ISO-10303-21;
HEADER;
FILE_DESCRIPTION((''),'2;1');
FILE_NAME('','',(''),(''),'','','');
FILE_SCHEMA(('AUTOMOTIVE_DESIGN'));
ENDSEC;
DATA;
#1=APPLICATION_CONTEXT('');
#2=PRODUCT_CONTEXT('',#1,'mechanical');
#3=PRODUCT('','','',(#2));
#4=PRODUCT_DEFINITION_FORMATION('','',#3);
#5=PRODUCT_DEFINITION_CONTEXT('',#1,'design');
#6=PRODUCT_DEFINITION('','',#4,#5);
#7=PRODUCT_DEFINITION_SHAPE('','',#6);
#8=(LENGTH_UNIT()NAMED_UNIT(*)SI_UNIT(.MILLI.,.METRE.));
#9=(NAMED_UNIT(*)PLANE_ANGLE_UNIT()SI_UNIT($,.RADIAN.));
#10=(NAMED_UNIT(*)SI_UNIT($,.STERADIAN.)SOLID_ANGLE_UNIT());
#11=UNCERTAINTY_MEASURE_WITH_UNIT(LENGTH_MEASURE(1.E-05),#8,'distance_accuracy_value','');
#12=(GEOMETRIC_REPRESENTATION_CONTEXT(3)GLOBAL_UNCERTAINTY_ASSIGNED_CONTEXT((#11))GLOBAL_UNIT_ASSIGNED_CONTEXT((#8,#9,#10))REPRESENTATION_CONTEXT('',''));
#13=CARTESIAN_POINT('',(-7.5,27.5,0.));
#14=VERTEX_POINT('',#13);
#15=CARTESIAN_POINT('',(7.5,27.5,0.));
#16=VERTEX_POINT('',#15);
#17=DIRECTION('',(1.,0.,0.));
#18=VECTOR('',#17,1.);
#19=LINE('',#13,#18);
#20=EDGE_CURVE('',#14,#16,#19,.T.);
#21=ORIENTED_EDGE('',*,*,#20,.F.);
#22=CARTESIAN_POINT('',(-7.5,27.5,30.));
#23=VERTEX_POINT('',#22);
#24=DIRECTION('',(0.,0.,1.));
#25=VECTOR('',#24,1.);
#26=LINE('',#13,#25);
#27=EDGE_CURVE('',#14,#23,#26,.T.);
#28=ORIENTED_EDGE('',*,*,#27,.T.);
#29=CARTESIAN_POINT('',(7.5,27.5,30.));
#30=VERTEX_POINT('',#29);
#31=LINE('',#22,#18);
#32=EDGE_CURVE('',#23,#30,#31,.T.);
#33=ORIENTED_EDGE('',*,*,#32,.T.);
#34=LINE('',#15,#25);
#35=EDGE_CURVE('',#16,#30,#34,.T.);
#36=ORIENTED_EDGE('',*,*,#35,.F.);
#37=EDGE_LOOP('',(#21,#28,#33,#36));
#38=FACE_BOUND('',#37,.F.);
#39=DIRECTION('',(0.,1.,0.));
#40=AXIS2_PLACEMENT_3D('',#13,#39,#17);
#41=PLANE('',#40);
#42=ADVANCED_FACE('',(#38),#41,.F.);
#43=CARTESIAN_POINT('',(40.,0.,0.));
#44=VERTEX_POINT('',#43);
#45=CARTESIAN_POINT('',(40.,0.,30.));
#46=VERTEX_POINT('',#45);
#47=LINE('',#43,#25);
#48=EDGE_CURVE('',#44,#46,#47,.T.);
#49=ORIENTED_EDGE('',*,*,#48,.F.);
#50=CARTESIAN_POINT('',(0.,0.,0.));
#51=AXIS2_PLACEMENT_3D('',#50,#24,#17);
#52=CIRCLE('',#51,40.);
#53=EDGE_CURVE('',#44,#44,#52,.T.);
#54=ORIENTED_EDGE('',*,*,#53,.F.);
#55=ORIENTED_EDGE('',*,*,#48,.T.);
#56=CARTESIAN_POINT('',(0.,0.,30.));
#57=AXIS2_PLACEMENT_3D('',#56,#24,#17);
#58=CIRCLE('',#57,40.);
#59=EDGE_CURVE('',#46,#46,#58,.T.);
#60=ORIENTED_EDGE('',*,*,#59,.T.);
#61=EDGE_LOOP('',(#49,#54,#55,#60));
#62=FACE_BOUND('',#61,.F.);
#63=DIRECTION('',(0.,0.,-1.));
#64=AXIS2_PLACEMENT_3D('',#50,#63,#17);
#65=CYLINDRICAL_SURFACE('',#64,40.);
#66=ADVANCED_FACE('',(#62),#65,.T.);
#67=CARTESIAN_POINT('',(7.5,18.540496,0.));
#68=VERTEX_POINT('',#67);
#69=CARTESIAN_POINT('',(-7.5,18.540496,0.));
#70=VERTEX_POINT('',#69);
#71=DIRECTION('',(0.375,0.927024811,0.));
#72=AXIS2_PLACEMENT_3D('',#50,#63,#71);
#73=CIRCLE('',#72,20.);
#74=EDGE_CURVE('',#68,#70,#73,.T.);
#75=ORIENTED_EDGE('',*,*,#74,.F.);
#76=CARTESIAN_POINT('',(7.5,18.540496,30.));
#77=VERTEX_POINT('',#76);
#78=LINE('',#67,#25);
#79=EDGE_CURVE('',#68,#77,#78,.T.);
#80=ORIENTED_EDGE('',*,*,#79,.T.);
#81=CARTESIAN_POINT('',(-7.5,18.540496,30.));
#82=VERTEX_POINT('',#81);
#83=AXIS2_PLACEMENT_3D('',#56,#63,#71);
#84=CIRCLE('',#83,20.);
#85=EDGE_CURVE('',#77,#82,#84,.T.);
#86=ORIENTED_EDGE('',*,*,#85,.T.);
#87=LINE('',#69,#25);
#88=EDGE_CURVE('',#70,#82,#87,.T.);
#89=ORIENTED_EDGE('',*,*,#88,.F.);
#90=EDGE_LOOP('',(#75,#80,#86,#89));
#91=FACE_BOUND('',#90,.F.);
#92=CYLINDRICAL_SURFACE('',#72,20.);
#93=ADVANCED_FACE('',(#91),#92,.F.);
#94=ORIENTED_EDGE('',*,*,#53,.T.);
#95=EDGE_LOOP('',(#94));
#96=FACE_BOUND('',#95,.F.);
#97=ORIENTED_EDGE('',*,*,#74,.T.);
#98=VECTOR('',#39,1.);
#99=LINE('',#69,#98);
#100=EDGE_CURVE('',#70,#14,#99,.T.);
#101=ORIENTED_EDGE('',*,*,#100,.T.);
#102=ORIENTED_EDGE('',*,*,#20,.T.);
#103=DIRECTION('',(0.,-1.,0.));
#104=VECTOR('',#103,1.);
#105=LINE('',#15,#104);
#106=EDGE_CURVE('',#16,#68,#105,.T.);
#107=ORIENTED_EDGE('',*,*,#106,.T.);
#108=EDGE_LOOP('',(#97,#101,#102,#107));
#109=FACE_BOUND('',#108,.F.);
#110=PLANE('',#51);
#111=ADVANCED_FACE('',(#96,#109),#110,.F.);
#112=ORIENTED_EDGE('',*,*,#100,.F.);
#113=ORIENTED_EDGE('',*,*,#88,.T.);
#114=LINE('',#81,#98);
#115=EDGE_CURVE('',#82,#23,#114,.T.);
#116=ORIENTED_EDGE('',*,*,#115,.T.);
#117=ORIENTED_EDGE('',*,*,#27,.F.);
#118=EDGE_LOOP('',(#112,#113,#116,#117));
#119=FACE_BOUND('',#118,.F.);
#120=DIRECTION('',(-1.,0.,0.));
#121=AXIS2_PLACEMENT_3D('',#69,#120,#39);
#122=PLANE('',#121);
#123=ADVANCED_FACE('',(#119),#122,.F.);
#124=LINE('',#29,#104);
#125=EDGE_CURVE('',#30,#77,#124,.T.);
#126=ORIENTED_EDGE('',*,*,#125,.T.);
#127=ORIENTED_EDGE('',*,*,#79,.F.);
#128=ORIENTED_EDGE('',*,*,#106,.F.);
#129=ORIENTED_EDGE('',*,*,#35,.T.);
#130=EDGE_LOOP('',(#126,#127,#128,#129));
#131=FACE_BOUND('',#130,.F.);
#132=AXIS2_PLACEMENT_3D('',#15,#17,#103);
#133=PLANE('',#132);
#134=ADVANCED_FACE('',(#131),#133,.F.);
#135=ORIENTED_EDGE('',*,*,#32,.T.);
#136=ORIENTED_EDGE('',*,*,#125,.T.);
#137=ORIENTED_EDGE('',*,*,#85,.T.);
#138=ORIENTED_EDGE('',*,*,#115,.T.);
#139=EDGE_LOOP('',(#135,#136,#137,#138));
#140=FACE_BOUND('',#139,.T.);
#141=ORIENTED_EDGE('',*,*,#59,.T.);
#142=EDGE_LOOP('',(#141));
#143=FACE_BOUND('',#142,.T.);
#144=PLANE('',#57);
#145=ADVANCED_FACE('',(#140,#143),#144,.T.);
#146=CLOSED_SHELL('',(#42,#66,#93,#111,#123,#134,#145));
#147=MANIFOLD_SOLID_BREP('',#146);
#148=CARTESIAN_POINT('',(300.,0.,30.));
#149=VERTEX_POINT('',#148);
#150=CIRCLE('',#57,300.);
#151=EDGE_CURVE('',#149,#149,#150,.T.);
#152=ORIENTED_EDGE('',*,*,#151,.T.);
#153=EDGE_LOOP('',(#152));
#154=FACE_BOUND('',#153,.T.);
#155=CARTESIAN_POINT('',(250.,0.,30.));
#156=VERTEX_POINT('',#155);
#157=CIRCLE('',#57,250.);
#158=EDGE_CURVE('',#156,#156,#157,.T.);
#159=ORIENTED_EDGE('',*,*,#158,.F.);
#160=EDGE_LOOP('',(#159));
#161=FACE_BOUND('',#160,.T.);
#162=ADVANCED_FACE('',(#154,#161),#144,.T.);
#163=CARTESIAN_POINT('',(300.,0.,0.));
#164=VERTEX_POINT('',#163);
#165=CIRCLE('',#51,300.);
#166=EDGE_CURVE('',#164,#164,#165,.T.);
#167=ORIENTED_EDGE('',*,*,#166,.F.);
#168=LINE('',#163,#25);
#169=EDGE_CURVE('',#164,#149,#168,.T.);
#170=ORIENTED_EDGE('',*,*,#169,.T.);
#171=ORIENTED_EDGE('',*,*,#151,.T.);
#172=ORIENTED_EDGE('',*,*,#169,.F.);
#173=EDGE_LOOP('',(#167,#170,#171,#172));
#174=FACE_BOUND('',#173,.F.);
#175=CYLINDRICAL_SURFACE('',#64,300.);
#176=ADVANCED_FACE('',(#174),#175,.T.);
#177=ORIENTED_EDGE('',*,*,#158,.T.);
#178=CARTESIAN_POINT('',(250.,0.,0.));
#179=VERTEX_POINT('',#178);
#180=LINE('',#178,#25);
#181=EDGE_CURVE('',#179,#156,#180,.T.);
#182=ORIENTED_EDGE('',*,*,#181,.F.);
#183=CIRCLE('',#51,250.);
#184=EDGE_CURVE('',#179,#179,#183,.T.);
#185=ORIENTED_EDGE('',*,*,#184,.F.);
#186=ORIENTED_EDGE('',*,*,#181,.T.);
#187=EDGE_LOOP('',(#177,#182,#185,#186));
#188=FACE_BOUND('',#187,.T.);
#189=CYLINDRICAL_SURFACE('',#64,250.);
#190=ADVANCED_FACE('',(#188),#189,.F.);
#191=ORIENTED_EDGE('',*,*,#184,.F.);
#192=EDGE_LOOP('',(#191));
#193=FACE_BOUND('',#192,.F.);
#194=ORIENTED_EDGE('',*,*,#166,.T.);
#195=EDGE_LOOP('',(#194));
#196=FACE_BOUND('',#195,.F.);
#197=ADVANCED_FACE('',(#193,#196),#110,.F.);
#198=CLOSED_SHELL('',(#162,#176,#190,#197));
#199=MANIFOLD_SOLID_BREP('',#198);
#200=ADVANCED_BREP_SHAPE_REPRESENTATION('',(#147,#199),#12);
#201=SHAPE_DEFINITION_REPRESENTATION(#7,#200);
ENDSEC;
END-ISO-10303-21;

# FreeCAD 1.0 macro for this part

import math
import FreeCAD as App
import Part
import Sketcher

doc = App.newDocument("Part")
body = doc.addObject("PartDesign::Body", "Body")

sketch1 = body.newObject("Sketcher::SketchObject", "Sketch")
sketch1.AttachmentSupport = (doc.getObject("XY_Plane"), [""])
sketch1.MapMode = "FlatFace"
sketch1.addGeometry([
    Part.Circle(App.Vector(0, 0, 0), App.Vector(0, 0, 1), 40),
    Part.LineSegment(App.Vector(8, 28, 0), App.Vector(8, 19, 0)),
    Part.ArcOfCircle(Part.Circle(App.Vector(0, 0, 0), App.Vector(0, 0, 1), 20), math.radians(112), math.radians(428)),
    Part.LineSegment(App.Vector(-8, 19, 0), App.Vector(-8, 28, 0)),
    Part.LineSegment(App.Vector(-8, 28, 0), App.Vector(8, 28, 0)),
], False)
sketch1.addConstraint([
    Sketcher.Constraint("Coincident", 1, 2, 2, 2),
    Sketcher.Constraint("Coincident", 2, 1, 3, 1),
    Sketcher.Constraint("Coincident", 3, 2, 4, 1),
    Sketcher.Constraint("Coincident", 4, 2, 1, 1),
    Sketcher.Constraint("Vertical", 1),
    Sketcher.Constraint("Vertical", 3),
    Sketcher.Constraint("Horizontal", 4),
    Sketcher.Constraint("Coincident", 0, 3, -1, 1),
    Sketcher.Constraint("Coincident", 2, 3, -1, 1),
    Sketcher.Constraint("Horizontal", 1, 2, 2, 1),
    Sketcher.Constraint("Diameter", 0, 80.0),
    Sketcher.Constraint("Radius", 2, 20.0),
    Sketcher.Constraint("DistanceX", 4, 1, 4, 2, 15.0),
    Sketcher.Constraint("DistanceY", -1, 1, 3, 2, 27.5),
])
pad1 = body.newObject("PartDesign::Pad", "Pad")
pad1.Profile = sketch1
pad1.Length = 30
body2 = doc.addObject("PartDesign::Body", "Body001")

sketch2 = body2.newObject("Sketcher::SketchObject", "Sketch001")
sketch2.AttachmentSupport = (doc.getObject("XY_Plane001"), [""])
sketch2.MapMode = "FlatFace"
sketch2.addGeometry([
    Part.Circle(App.Vector(0, 0, 0), App.Vector(0, 0, 1), 300),
    Part.Circle(App.Vector(0, 0, 0), App.Vector(0, 0, 1), 250),
], False)
sketch2.addConstraint([
    Sketcher.Constraint("Coincident", 0, 3, -1, 1),
    Sketcher.Constraint("Coincident", 1, 3, -1, 1),
    Sketcher.Constraint("Diameter", 0, 600.0),
    Sketcher.Constraint("Diameter", 1, 500.0),
])
pad2 = body2.newObject("PartDesign::Pad", "Pad001")
pad2.Profile = sketch2
pad2.Length = 30

doc.recompute()
